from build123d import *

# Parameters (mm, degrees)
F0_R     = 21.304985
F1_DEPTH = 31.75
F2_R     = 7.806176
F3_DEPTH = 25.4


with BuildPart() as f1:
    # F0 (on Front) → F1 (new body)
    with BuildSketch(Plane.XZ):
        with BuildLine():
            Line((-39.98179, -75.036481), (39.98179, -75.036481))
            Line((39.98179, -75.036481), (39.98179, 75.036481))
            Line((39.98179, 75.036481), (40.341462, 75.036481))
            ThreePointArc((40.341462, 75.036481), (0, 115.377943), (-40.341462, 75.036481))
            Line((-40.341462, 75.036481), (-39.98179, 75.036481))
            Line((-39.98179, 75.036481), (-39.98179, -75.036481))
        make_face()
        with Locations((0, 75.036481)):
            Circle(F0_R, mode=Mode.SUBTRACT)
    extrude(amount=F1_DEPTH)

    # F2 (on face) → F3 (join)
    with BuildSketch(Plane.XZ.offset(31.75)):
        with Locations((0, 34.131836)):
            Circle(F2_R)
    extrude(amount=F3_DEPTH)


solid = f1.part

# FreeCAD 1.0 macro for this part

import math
import FreeCAD as App
import Part
import Sketcher
from FreeCAD import Vector
Q = App.Units.Quantity

doc = App.newDocument("Part")
body = doc.addObject("PartDesign::Body", "Body")

# Sketch on XZ plane
sketch1 = body.newObject("Sketcher::SketchObject", "Sketch")
sketch1.AttachmentSupport = (doc.getObject("XZ_Plane"), [""])
sketch1.MapMode = "FlatFace"
sketch1.addGeometry(Part.LineSegment(Vector(-39.98179, -75.036481, 0), Vector(39.98179, -75.036481, 0)), False)
sketch1.addGeometry(Part.LineSegment(Vector(39.98179, -75.036481, 0), Vector(39.98179, 75.036481, 0)), False)
sketch1.addGeometry(Part.LineSegment(Vector(39.98179, 75.036481, 0), Vector(40.341462, 75.036481, 0)), False)
sketch1.addGeometry(Part.ArcOfCircle(Part.Circle(Vector(0, 75.036481, 0), Vector(0, 0, 1), 40.341462), math.radians(0), math.radians(180)), False)
sketch1.addGeometry(Part.LineSegment(Vector(-40.341462, 75.036481, 0), Vector(-39.98179, 75.036481, 0)), False)
sketch1.addGeometry(Part.LineSegment(Vector(-39.98179, 75.036481, 0), Vector(-39.98179, -75.036481, 0)), False)
sketch1.addGeometry(Part.Circle(Vector(0, 75.036481, 0), Vector(0, 0, 1), 21.304985), False)
sketch1.addConstraint(Sketcher.Constraint("Coincident", 0, 2, 1, 1))
sketch1.addConstraint(Sketcher.Constraint("Coincident", 1, 2, 2, 1))
sketch1.addConstraint(Sketcher.Constraint("Coincident", 2, 2, 3, 1))
sketch1.addConstraint(Sketcher.Constraint("Coincident", 3, 2, 4, 1))
sketch1.addConstraint(Sketcher.Constraint("Coincident", 4, 2, 5, 1))
sketch1.addConstraint(Sketcher.Constraint("Coincident", 5, 2, 0, 1))
sketch1.addConstraint(Sketcher.Constraint("Horizontal", 0))
sketch1.addConstraint(Sketcher.Constraint("Vertical", 1))
sketch1.addConstraint(Sketcher.Constraint("Horizontal", 2))
sketch1.addConstraint(Sketcher.Constraint("Horizontal", 4))
sketch1.addConstraint(Sketcher.Constraint("Vertical", 5))
sketch1.addConstraint(Sketcher.Constraint("Coincident", 6, 3, 3, 3))
sketch1.addConstraint(Sketcher.Constraint("Symmetric", 0, 2, 4, 2, -1, 1))
sketch1.addConstraint(Sketcher.Constraint("Symmetric", 2, 2, 3, 2, -2))
sketch1.addConstraint(Sketcher.Constraint("Horizontal", 6, 3, 1, 2))
sketch1.addConstraint(Sketcher.Constraint("Diameter", 6, Q("42.60997 mm")))
sketch1.addConstraint(Sketcher.Constraint("Radius", 3, Q("40.341462 mm")))
sketch1.addConstraint(Sketcher.Constraint("DistanceX", 0, 1, 0, 2, Q("79.96358 mm")))
sketch1.addConstraint(Sketcher.Constraint("DistanceY", 1, 1, 1, 2, Q("150.072962 mm")))
pad1 = body.newObject("PartDesign::Pad", "Pad")
pad1.Profile = sketch1
pad1.Length = Q("1.25 in")

# Sketch on XZ plane
sketch2 = body.newObject("Sketcher::SketchObject", "Sketch001")
sketch2.AttachmentSupport = (doc.getObject("XZ_Plane"), [""])
sketch2.MapMode = "FlatFace"
sketch2.AttachmentOffset = App.Placement(Vector(0, 0, 1.25 * 25.4), App.Rotation())
sketch2.addGeometry(Part.Circle(Vector(0, 34.131836, 0), Vector(0, 0, 1), 7.806176), False)
sketch2.addConstraint(Sketcher.Constraint("PointOnObject", 0, 3, -2))
sketch2.addConstraint(Sketcher.Constraint("Diameter", 0, Q("15.612352 mm")))
sketch2.addConstraint(Sketcher.Constraint("DistanceY", -1, 1, 0, 3, Q("34.131836 mm")))
pad2 = body.newObject("PartDesign::Pad", "Pad001")
pad2.Profile = sketch2
pad2.Length = Q("1 in")

doc.recompute()
